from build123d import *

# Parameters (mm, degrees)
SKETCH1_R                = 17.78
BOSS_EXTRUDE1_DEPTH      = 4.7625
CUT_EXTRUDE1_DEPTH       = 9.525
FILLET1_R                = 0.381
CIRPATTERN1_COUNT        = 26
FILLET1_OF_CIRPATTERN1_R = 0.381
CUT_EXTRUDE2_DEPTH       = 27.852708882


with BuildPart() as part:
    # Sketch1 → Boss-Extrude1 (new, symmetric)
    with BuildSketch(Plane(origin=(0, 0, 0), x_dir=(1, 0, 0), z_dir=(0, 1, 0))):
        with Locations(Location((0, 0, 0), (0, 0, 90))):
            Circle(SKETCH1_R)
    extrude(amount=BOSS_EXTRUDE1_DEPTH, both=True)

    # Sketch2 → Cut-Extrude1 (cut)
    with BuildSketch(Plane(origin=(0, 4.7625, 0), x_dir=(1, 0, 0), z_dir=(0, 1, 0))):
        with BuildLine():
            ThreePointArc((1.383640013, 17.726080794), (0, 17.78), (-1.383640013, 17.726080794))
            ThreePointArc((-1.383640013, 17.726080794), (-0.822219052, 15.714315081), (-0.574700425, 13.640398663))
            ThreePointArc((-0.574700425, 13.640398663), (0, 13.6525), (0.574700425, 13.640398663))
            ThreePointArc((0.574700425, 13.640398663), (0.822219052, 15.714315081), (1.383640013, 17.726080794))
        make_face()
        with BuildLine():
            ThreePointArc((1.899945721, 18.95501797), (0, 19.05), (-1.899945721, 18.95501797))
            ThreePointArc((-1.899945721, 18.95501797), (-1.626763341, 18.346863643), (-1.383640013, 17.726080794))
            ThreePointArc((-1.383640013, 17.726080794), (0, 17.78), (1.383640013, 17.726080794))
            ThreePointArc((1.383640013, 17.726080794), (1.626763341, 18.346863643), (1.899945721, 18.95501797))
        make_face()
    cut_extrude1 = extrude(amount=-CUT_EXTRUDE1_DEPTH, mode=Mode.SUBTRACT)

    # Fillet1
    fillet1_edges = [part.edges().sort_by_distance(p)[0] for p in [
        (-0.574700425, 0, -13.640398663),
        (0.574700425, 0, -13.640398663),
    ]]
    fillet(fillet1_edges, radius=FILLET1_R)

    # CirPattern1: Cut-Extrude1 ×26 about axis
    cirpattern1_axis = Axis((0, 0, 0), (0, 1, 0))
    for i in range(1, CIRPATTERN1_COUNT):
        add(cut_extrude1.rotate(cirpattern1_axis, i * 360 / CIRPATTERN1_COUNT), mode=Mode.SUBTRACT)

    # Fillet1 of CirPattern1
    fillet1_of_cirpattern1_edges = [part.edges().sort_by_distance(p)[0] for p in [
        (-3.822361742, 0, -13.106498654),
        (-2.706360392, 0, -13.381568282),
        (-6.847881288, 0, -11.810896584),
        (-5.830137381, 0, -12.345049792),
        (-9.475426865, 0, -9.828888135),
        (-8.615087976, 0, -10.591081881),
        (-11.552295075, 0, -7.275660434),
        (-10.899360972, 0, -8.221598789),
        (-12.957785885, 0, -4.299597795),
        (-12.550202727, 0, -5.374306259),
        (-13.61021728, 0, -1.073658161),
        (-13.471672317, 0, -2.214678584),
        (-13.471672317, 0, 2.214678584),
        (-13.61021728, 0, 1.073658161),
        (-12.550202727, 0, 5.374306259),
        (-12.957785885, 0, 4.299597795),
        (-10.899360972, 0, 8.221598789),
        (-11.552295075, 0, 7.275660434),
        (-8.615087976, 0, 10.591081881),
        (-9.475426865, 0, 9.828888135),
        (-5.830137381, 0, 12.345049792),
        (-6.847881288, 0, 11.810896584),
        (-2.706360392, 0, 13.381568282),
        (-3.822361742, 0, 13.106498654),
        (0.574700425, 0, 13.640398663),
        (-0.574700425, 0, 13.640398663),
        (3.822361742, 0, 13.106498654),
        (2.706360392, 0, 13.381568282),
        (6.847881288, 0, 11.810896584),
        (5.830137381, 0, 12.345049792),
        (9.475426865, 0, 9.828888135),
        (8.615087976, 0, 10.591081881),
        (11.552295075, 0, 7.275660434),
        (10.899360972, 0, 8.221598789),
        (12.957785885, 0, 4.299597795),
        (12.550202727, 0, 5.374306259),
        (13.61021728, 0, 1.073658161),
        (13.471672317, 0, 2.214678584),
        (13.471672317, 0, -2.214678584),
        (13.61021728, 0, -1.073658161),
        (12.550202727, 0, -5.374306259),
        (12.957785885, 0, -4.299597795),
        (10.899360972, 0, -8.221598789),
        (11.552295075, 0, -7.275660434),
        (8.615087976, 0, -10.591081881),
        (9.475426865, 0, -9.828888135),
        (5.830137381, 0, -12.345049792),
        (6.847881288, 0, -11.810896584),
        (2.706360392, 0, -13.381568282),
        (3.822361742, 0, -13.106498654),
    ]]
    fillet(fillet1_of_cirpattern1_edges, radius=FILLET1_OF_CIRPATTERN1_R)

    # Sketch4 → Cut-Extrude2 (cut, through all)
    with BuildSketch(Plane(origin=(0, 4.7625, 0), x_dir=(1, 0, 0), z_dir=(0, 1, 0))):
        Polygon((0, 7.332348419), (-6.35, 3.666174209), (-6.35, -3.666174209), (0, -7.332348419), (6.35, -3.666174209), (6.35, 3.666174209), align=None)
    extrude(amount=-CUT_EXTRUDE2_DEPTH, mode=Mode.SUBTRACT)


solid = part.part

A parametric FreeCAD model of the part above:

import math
import FreeCAD as App
import Part
import Sketcher
Q = App.Units.Quantity


def edges_at(feature, points):
    """Names of the edges that pass closest to the given points."""
    edges = feature.Shape.Edges
    near = lambda p: min(range(len(edges)), key=lambda i: edges[i].distToShape(Part.Vertex(*p))[0])
    return sorted({f"Edge{near(p) + 1}" for p in points})


def add_polygon(sketch, points):
    """Adds a closed chain of lines whose ends are joined by coincident constraints."""
    first, n = sketch.GeometryCount, len(points)
    for a, b in zip(points, points[1:] + points[:1]):
        sketch.addGeometry(Part.LineSegment(App.Vector(*a, 0), App.Vector(*b, 0)), False)
    for i in range(n):
        sketch.addConstraint(Sketcher.Constraint("Coincident", first + i, 2, first + (i + 1) % n, 1))

doc = App.newDocument("Part")
body = doc.addObject("PartDesign::Body", "Body")

sketch1 = body.newObject("Sketcher::SketchObject", "Sketch")
sketch1.AttachmentSupport = (doc.getObject("XZ_Plane"), [""])
sketch1.MapMode = "FlatFace"
sketch1.addGeometry(Part.Circle(App.Vector(0, 0, 0), App.Vector(0, 0, 1), 18), False)
sketch1.addConstraint([
    Sketcher.Constraint("Coincident", 0, 3, -1, 1),
    Sketcher.Constraint("Diameter", 0, Q("1.4 in")),
])
pad1 = body.newObject("PartDesign::Pad", "Pad")
pad1.Profile = sketch1
pad1.Length = Q("0.375 in")
pad1.Midplane = True

sketch2 = body.newObject("Sketcher::SketchObject", "Sketch001")
sketch2.AttachmentSupport = (doc.getObject("XZ_Plane"), [""])
sketch2.MapMode = "FlatFace"
sketch2.AttachmentOffset = App.Placement(App.Vector(0, 0, -0.1875 * 25.4), App.Rotation())
sketch2.addGeometry([
    Part.ArcOfCircle(Part.Circle(App.Vector(-14.2, -13.1, 0), App.Vector(0, 0, 1), 13.6), math.radians(-19.99), math.radians(-2.41)),
    Part.ArcOfCircle(Part.Circle(App.Vector(0, 0, 0), App.Vector(0, 0, 1), 13.7), math.radians(-92.41), math.radians(-87.59)),
    Part.ArcOfCircle(Part.Circle(App.Vector(14.2, -13.1, 0), App.Vector(0, 0, 1), 13.6), math.radians(-177.59), math.radians(-160.01)),
    Part.ArcOfCircle(Part.Circle(App.Vector(14.2, -13.1, 0), App.Vector(0, 0, 1), 13.6), math.radians(-160.01), math.radians(-154.41)),
    Part.ArcOfCircle(Part.Circle(App.Vector(0, 0, 0), App.Vector(0, 0, 1), 19), math.radians(-95.72), math.radians(-84.28)),
    Part.ArcOfCircle(Part.Circle(App.Vector(-14.2, -13.1, 0), App.Vector(0, 0, 1), 13.6), math.radians(-25.59), math.radians(-19.99)),
], False)
sketch2.addConstraint([
    Sketcher.Constraint("Coincident", 0, 2, 1, 1),
    Sketcher.Constraint("Coincident", 1, 2, 2, 1),
    Sketcher.Constraint("Tangent", 2, 2, 3, 1),
    Sketcher.Constraint("Coincident", 3, 2, 4, 2),
    Sketcher.Constraint("Coincident", 4, 1, 5, 1),
    Sketcher.Constraint("Tangent", 5, 2, 0, 1),
    Sketcher.Constraint("Coincident", 1, 3, -1, 1),
    Sketcher.Constraint("Coincident", 4, 3, -1, 1),
    Sketcher.Constraint("Equal", 0, 2),
    Sketcher.Constraint("Equal", 2, 3),
    Sketcher.Constraint("Equal", 3, 5),
    Sketcher.Constraint("Symmetric", 0, 3, 2, 3, -2),
    Sketcher.Constraint("Horizontal", 2, 2, 5, 2),
    Sketcher.Constraint("Radius", 4, Q("0.75 in")),
    Sketcher.Constraint("Radius", 1, Q("0.5375 in")),
    Sketcher.Constraint("Radius", 0, 13.632658),
    Sketcher.Constraint("DistanceX", 0, 2, 2, 2, Q("0.0771 in")),
    Sketcher.Constraint("DistanceX", 0, 2, -1, 1, 0.5747),
    Sketcher.Constraint("DistanceY", 2, 2, -1, 1, 17.726081),
])
pocket1 = body.newObject("PartDesign::Pocket", "Pocket")
pocket1.Profile = sketch2
pocket1.Length = Q("0.375 in")
pocket1.Reversed = True
doc.recompute()

fillet = body.newObject("PartDesign::Fillet", "Fillet")
fillet.Base = (pocket1, edges_at(pocket1, [(-0.575, 0, -13.64), (0.575, 0, -13.64)]))
fillet.Radius = Q("0.015 in")
doc.recompute()

polarpattern = body.newObject("PartDesign::PolarPattern", "PolarPattern")
polarpattern.Originals = [pocket1]
polarpattern.Axis = (doc.getObject("Y_Axis"), [""])
polarpattern.Angle = 360
polarpattern.Occurrences = 26
body.Tip = polarpattern
doc.recompute()

fillet2 = body.newObject("PartDesign::Fillet", "Fillet001")
fillet2.Base = (polarpattern, edges_at(polarpattern, [
    (-3.822, 0, -13.106),
    (-2.706, 0, -13.382),
    (-6.848, 0, -11.811),
    (-5.83, 0, -12.345),
    (-9.475, 0, -9.829),
    (-8.615, 0, -10.591),
    (-11.552, 0, -7.276),
    (-10.899, 0, -8.222),
    (-12.958, 0, -4.3),
    (-12.55, 0, -5.374),
    (-13.61, 0, -1.074),
    (-13.472, 0, -2.215),
    (-13.472, 0, 2.215),
    (-13.61, 0, 1.074),
    (-12.55, 0, 5.374),
    (-12.958, 0, 4.3),
    (-10.899, 0, 8.222),
    (-11.552, 0, 7.276),
    (-8.615, 0, 10.591),
    (-9.475, 0, 9.829),
    (-5.83, 0, 12.345),
    (-6.848, 0, 11.811),
    (-2.706, 0, 13.382),
    (-3.822, 0, 13.106),
    (0.575, 0, 13.64),
    (-0.575, 0, 13.64),
    (3.822, 0, 13.106),
    (2.706, 0, 13.382),
    (6.848, 0, 11.811),
    (5.83, 0, 12.345),
    (9.475, 0, 9.829),
    (8.615, 0, 10.591),
    (11.552, 0, 7.276),
    (10.899, 0, 8.222),
    (12.958, 0, 4.3),
    (12.55, 0, 5.374),
    (13.61, 0, 1.074),
    (13.472, 0, 2.215),
    (13.472, 0, -2.215),
    (13.61, 0, -1.074),
    (12.55, 0, -5.374),
    (12.958, 0, -4.3),
    (10.899, 0, -8.222),
    (11.552, 0, -7.276),
    (8.615, 0, -10.591),
    (9.475, 0, -9.829),
    (5.83, 0, -12.345),
    (6.848, 0, -11.811),
    (2.706, 0, -13.382),
    (3.822, 0, -13.106),
]))
fillet2.Radius = Q("0.015 in")

sketch3 = body.newObject("Sketcher::SketchObject", "Sketch002")
sketch3.AttachmentSupport = (doc.getObject("XZ_Plane"), [""])
sketch3.MapMode = "FlatFace"
sketch3.AttachmentOffset = App.Placement(App.Vector(0, 0, -0.1875 * 25.4), App.Rotation())
add_polygon(sketch3, [(0, -7), (-6, -4), (-6, 4), (0, 7), (6, 4), (6, -4)])
sketch3.addConstraint([
    Sketcher.Constraint("Vertical", 1),
    Sketcher.Constraint("Vertical", 4),
    Sketcher.Constraint("Symmetric", 0, 2, 3, 2, -1, 1),
    Sketcher.Constraint("Symmetric", 2, 2, 5, 2, -1, 1),
    Sketcher.Constraint("PointOnObject", 2, 2, -2),
    Sketcher.Constraint("Parallel", 2, 5),
    Sketcher.Constraint("Horizontal", 1, 2, 3, 2),
    Sketcher.Constraint("Angle", 0, Q("150 deg")),
    Sketcher.Constraint("DistanceX", 1, 2, 3, 2, Q("0.5 in")),
    Sketcher.Constraint("DistanceY", 1, 1, 1, 2, 7.332348),
])
pocket2 = body.newObject("PartDesign::Pocket", "Pocket001")
pocket2.Profile = sketch3
pocket2.Type = "ThroughAll"
pocket2.Reversed = True

doc.recompute()
